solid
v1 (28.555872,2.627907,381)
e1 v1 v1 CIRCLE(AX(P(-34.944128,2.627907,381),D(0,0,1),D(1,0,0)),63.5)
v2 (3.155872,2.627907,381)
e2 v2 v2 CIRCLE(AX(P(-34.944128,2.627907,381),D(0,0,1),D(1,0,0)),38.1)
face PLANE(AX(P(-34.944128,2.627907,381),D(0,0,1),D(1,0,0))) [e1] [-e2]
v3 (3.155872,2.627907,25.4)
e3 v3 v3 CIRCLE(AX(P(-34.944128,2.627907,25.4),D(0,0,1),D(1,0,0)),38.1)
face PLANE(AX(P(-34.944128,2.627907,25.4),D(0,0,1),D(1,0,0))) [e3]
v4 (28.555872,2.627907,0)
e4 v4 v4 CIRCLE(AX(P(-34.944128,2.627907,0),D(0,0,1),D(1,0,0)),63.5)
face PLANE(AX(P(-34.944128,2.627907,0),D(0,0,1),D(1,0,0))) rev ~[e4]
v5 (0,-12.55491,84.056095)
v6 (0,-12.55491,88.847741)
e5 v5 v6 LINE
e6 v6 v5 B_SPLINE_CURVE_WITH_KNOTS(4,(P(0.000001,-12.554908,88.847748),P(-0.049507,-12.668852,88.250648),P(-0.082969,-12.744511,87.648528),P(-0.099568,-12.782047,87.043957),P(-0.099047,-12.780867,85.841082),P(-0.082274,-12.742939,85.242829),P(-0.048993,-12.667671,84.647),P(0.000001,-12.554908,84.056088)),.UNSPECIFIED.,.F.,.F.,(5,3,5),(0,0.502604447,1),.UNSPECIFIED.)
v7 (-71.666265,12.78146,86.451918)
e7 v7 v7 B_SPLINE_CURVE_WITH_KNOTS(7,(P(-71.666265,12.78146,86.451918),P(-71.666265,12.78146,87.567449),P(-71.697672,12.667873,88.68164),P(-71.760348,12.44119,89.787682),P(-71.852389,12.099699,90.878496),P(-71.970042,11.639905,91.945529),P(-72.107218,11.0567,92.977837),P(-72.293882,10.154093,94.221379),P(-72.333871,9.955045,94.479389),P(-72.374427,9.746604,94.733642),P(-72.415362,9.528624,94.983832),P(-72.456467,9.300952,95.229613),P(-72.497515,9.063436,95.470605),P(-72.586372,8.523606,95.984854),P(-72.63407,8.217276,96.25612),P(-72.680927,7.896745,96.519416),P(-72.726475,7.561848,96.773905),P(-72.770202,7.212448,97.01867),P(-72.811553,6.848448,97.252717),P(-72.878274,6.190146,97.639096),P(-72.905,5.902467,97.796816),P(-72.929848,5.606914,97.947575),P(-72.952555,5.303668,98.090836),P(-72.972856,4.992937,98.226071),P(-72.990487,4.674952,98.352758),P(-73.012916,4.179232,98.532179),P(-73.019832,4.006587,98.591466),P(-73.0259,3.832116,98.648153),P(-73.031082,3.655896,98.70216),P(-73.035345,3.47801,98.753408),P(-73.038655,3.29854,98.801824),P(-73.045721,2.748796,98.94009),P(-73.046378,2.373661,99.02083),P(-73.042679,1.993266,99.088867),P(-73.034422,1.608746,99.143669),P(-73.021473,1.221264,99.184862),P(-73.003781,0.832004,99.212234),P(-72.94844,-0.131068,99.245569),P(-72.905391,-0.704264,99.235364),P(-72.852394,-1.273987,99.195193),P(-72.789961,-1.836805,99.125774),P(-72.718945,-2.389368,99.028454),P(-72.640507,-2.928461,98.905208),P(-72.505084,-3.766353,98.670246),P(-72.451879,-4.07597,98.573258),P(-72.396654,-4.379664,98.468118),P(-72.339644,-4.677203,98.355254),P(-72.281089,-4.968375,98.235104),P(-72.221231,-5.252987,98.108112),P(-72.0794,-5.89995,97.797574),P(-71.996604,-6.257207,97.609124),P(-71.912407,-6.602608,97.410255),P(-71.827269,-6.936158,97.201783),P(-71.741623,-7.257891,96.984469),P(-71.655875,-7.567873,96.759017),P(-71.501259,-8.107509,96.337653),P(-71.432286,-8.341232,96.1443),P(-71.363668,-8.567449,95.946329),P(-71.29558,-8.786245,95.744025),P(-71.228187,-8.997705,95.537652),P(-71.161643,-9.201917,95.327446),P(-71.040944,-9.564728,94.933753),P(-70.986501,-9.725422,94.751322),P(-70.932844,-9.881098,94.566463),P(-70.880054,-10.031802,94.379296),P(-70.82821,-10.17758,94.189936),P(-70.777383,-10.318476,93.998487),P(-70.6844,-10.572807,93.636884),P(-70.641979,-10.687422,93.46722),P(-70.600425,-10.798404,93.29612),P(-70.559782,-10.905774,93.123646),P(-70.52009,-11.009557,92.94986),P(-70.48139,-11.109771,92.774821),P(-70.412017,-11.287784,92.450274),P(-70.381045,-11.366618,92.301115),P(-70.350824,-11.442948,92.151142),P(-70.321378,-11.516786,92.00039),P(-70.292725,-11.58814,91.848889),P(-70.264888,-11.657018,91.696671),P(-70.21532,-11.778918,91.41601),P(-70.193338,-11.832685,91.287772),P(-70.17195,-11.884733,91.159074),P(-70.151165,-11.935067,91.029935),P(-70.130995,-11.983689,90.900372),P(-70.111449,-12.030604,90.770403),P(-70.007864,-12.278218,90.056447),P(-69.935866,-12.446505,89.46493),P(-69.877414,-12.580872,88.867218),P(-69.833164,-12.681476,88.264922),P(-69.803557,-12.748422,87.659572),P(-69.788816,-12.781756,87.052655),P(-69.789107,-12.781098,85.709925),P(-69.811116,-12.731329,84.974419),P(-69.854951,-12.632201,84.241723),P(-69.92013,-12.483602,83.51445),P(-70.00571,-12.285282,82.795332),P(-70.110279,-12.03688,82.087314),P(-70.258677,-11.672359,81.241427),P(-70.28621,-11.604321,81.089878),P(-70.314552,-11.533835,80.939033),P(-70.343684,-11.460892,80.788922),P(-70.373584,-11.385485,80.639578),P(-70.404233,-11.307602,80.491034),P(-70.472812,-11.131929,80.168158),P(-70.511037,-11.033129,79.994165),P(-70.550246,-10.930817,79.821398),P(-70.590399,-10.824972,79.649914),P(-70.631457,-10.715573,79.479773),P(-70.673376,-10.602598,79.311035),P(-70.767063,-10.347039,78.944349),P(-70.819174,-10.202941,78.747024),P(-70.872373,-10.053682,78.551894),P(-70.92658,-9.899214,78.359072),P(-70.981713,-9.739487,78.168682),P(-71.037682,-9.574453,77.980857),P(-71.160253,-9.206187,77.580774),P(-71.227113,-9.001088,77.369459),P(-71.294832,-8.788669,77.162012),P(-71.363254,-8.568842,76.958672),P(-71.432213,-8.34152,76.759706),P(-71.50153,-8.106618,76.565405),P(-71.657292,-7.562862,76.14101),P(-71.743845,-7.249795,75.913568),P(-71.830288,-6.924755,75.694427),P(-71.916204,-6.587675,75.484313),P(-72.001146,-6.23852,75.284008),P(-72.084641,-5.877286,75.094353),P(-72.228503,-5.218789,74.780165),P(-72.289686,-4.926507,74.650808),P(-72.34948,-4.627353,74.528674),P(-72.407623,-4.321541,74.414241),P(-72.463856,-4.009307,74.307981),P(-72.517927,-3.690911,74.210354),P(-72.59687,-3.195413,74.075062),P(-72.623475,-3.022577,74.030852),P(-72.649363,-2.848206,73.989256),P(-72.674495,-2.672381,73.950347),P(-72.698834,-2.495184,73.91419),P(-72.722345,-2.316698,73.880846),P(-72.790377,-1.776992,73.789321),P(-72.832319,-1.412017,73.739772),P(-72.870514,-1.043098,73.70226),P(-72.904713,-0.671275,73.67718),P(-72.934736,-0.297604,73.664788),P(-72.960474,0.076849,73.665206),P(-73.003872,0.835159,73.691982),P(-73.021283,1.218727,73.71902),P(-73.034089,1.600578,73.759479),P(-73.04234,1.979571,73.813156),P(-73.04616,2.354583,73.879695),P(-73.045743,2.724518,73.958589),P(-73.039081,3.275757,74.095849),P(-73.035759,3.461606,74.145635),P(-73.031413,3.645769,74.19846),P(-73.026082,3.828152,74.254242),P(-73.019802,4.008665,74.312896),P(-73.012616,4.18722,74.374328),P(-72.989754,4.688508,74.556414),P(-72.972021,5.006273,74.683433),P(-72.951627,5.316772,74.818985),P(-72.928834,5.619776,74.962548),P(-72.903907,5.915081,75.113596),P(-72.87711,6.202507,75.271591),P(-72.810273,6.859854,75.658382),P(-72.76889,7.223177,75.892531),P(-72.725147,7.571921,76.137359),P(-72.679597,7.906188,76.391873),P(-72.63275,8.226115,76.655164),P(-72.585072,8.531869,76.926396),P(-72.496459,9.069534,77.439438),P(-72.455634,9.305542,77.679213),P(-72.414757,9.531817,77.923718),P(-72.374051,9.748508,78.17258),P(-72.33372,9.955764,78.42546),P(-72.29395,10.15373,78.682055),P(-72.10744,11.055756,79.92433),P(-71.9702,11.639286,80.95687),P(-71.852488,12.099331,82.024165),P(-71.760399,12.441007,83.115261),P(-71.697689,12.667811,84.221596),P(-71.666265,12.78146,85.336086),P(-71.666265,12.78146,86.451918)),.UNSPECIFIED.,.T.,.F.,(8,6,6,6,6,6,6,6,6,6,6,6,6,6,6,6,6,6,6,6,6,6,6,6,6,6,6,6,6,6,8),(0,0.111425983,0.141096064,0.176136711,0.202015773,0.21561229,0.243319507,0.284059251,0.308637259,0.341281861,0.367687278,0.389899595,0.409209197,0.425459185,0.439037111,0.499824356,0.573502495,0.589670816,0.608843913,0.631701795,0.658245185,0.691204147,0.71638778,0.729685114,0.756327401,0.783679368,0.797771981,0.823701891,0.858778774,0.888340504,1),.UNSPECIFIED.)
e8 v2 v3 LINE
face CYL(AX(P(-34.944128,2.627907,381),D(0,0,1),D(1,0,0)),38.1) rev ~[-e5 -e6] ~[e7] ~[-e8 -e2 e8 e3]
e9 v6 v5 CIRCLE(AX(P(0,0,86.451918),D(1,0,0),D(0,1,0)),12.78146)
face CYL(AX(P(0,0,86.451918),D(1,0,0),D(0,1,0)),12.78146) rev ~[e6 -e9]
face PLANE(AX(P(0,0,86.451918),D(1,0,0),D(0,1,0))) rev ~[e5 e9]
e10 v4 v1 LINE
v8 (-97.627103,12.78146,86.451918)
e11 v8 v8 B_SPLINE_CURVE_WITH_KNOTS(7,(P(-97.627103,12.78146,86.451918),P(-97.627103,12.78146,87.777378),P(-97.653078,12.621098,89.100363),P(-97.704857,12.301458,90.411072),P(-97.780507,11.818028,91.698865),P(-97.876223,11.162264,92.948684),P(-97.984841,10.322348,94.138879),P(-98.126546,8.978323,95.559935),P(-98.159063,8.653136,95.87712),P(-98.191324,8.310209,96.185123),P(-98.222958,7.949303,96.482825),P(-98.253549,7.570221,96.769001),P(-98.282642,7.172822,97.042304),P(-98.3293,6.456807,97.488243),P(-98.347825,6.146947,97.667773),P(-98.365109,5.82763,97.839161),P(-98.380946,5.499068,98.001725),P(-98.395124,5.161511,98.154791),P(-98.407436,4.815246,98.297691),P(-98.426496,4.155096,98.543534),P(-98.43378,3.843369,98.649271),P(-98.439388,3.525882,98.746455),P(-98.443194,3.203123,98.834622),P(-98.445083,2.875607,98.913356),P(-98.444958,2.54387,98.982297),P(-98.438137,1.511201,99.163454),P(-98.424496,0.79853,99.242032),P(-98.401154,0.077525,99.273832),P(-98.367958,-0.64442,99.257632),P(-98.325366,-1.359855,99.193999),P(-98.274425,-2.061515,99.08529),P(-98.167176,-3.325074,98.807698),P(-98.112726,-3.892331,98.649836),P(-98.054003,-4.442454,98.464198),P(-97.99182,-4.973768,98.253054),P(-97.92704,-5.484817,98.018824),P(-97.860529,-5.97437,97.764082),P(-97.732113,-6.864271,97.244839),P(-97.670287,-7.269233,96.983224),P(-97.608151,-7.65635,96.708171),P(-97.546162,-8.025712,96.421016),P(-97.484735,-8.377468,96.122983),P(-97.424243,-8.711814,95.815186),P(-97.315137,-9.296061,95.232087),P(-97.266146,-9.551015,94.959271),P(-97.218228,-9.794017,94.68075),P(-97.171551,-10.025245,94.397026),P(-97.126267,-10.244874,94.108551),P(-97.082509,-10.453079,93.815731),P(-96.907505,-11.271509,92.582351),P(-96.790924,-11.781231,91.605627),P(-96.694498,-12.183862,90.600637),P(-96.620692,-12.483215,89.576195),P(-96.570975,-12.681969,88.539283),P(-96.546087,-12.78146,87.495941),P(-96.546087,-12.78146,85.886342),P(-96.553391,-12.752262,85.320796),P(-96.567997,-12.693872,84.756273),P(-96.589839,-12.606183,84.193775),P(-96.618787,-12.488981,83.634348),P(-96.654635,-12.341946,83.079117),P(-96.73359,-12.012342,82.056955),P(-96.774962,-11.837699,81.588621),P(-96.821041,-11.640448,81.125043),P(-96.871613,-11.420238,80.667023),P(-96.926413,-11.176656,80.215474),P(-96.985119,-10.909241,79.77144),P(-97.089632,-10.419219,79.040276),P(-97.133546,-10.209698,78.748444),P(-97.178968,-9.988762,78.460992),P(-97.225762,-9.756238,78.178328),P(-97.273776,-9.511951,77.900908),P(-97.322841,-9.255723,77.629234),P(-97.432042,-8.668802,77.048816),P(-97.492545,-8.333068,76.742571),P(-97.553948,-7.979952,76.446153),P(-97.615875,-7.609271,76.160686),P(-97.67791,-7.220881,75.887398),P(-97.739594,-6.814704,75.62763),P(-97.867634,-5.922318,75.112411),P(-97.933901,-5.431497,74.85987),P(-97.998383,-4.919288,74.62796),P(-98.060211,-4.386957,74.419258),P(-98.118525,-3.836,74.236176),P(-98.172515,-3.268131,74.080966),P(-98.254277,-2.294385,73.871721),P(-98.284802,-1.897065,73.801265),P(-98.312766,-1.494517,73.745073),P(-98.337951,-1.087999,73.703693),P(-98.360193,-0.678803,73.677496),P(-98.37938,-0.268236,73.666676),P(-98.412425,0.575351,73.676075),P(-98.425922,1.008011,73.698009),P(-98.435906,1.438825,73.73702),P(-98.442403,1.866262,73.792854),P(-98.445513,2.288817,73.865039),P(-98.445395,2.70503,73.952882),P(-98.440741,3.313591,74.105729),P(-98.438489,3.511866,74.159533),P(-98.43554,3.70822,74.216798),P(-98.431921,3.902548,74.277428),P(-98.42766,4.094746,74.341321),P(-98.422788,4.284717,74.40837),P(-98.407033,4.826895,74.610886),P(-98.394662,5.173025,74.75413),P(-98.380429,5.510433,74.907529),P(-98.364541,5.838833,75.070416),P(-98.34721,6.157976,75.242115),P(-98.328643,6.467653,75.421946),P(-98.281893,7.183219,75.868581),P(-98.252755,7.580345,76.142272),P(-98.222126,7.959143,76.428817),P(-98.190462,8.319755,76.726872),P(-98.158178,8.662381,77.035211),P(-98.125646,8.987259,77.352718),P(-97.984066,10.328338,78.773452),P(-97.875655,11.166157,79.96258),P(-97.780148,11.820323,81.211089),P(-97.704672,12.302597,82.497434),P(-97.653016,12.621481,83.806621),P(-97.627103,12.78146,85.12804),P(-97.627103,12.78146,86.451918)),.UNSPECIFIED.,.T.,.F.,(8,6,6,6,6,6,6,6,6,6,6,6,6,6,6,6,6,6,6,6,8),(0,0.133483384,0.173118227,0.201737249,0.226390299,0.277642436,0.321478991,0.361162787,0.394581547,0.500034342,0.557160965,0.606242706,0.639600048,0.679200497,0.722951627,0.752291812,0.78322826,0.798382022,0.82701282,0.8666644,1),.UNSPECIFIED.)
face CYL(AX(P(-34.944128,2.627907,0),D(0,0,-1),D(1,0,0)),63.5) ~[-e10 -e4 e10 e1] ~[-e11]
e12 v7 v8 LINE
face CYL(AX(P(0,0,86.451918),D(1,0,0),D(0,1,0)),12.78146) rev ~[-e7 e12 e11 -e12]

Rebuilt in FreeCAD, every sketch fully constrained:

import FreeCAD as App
import Part
import Sketcher
Q = App.Units.Quantity

doc = App.newDocument("Part")
params = doc.addObject("Spreadsheet::Sheet", "Params")
for row, (alias, value) in enumerate([
    ("sketch1_diameter", "5 in"),
    ("pad1_length", "15 in"),
    ("sketch2_diameter", "3 in"),
    ("pocket1_length", "14 in"),
    ("pocket2_length", "5 in"),
], start=1):
    params.set(f"A{row}", alias)
    params.set(f"B{row}", "=" + value)
    params.setAlias(f"B{row}", alias)

body = doc.addObject("PartDesign::Body", "Body")

# Sketch on XY plane
sketch1 = body.newObject("Sketcher::SketchObject", "Sketch")
sketch1.AttachmentSupport = (doc.getObject("XY_Plane"), [""])
sketch1.MapMode = "FlatFace"
sketch1.addGeometry(Part.Circle(App.Vector(-35, 3, 0), App.Vector(0, 0, 1), 64), False)
sketch1.addConstraint([
    Sketcher.Constraint("Diameter", 0, Q("5 in")),
    Sketcher.Constraint("DistanceX", 0, 3, -1, 1, Q("34.944128 mm")),
    Sketcher.Constraint("DistanceY", -1, 1, 0, 3, Q("2.627907 mm")),
])
sketch1.setExpression("Constraints[0]", "Params.sketch1_diameter")
pad1 = body.newObject("PartDesign::Pad", "Pad")
pad1.Profile = sketch1
pad1.setExpression("Length", "Params.pad1_length")

# Sketch on XY plane
sketch2 = body.newObject("Sketcher::SketchObject", "Sketch001")
sketch2.AttachmentSupport = (doc.getObject("XY_Plane"), [""])
sketch2.MapMode = "FlatFace"
sketch2.AttachmentOffset = App.Placement(App.Vector(0, 0, 15 * 25.4), App.Rotation())
sketch2.addGeometry(Part.Circle(App.Vector(-35, 3, 0), App.Vector(0, 0, 1), 38), False)
sketch2.addConstraint([
    Sketcher.Constraint("Diameter", 0, Q("3 in")),
    Sketcher.Constraint("DistanceX", 0, 3, -1, 1, Q("34.944128 mm")),
    Sketcher.Constraint("DistanceY", -1, 1, 0, 3, Q("2.627907 mm")),
])
sketch2.setExpression("Constraints[0]", "Params.sketch2_diameter")
pocket1 = body.newObject("PartDesign::Pocket", "Pocket")
pocket1.Profile = sketch2
pocket1.setExpression("Length", "Params.pocket1_length")

# Sketch on YZ plane
sketch3 = body.newObject("Sketcher::SketchObject", "Sketch002")
sketch3.AttachmentSupport = (doc.getObject("YZ_Plane"), [""])
sketch3.MapMode = "FlatFace"
sketch3.addGeometry(Part.Circle(App.Vector(0, 86, 0), App.Vector(0, 0, 1), 13), False)
sketch3.addConstraint([
    Sketcher.Constraint("PointOnObject", 0, 3, -2),
    Sketcher.Constraint("Diameter", 0, Q("25.56292 mm")),
    Sketcher.Constraint("DistanceY", -1, 1, 0, 3, Q("86.451918 mm")),
])
pocket2 = body.newObject("PartDesign::Pocket", "Pocket001")
pocket2.Profile = sketch3
pocket2.setExpression("Length", "Params.pocket2_length")

doc.recompute()
